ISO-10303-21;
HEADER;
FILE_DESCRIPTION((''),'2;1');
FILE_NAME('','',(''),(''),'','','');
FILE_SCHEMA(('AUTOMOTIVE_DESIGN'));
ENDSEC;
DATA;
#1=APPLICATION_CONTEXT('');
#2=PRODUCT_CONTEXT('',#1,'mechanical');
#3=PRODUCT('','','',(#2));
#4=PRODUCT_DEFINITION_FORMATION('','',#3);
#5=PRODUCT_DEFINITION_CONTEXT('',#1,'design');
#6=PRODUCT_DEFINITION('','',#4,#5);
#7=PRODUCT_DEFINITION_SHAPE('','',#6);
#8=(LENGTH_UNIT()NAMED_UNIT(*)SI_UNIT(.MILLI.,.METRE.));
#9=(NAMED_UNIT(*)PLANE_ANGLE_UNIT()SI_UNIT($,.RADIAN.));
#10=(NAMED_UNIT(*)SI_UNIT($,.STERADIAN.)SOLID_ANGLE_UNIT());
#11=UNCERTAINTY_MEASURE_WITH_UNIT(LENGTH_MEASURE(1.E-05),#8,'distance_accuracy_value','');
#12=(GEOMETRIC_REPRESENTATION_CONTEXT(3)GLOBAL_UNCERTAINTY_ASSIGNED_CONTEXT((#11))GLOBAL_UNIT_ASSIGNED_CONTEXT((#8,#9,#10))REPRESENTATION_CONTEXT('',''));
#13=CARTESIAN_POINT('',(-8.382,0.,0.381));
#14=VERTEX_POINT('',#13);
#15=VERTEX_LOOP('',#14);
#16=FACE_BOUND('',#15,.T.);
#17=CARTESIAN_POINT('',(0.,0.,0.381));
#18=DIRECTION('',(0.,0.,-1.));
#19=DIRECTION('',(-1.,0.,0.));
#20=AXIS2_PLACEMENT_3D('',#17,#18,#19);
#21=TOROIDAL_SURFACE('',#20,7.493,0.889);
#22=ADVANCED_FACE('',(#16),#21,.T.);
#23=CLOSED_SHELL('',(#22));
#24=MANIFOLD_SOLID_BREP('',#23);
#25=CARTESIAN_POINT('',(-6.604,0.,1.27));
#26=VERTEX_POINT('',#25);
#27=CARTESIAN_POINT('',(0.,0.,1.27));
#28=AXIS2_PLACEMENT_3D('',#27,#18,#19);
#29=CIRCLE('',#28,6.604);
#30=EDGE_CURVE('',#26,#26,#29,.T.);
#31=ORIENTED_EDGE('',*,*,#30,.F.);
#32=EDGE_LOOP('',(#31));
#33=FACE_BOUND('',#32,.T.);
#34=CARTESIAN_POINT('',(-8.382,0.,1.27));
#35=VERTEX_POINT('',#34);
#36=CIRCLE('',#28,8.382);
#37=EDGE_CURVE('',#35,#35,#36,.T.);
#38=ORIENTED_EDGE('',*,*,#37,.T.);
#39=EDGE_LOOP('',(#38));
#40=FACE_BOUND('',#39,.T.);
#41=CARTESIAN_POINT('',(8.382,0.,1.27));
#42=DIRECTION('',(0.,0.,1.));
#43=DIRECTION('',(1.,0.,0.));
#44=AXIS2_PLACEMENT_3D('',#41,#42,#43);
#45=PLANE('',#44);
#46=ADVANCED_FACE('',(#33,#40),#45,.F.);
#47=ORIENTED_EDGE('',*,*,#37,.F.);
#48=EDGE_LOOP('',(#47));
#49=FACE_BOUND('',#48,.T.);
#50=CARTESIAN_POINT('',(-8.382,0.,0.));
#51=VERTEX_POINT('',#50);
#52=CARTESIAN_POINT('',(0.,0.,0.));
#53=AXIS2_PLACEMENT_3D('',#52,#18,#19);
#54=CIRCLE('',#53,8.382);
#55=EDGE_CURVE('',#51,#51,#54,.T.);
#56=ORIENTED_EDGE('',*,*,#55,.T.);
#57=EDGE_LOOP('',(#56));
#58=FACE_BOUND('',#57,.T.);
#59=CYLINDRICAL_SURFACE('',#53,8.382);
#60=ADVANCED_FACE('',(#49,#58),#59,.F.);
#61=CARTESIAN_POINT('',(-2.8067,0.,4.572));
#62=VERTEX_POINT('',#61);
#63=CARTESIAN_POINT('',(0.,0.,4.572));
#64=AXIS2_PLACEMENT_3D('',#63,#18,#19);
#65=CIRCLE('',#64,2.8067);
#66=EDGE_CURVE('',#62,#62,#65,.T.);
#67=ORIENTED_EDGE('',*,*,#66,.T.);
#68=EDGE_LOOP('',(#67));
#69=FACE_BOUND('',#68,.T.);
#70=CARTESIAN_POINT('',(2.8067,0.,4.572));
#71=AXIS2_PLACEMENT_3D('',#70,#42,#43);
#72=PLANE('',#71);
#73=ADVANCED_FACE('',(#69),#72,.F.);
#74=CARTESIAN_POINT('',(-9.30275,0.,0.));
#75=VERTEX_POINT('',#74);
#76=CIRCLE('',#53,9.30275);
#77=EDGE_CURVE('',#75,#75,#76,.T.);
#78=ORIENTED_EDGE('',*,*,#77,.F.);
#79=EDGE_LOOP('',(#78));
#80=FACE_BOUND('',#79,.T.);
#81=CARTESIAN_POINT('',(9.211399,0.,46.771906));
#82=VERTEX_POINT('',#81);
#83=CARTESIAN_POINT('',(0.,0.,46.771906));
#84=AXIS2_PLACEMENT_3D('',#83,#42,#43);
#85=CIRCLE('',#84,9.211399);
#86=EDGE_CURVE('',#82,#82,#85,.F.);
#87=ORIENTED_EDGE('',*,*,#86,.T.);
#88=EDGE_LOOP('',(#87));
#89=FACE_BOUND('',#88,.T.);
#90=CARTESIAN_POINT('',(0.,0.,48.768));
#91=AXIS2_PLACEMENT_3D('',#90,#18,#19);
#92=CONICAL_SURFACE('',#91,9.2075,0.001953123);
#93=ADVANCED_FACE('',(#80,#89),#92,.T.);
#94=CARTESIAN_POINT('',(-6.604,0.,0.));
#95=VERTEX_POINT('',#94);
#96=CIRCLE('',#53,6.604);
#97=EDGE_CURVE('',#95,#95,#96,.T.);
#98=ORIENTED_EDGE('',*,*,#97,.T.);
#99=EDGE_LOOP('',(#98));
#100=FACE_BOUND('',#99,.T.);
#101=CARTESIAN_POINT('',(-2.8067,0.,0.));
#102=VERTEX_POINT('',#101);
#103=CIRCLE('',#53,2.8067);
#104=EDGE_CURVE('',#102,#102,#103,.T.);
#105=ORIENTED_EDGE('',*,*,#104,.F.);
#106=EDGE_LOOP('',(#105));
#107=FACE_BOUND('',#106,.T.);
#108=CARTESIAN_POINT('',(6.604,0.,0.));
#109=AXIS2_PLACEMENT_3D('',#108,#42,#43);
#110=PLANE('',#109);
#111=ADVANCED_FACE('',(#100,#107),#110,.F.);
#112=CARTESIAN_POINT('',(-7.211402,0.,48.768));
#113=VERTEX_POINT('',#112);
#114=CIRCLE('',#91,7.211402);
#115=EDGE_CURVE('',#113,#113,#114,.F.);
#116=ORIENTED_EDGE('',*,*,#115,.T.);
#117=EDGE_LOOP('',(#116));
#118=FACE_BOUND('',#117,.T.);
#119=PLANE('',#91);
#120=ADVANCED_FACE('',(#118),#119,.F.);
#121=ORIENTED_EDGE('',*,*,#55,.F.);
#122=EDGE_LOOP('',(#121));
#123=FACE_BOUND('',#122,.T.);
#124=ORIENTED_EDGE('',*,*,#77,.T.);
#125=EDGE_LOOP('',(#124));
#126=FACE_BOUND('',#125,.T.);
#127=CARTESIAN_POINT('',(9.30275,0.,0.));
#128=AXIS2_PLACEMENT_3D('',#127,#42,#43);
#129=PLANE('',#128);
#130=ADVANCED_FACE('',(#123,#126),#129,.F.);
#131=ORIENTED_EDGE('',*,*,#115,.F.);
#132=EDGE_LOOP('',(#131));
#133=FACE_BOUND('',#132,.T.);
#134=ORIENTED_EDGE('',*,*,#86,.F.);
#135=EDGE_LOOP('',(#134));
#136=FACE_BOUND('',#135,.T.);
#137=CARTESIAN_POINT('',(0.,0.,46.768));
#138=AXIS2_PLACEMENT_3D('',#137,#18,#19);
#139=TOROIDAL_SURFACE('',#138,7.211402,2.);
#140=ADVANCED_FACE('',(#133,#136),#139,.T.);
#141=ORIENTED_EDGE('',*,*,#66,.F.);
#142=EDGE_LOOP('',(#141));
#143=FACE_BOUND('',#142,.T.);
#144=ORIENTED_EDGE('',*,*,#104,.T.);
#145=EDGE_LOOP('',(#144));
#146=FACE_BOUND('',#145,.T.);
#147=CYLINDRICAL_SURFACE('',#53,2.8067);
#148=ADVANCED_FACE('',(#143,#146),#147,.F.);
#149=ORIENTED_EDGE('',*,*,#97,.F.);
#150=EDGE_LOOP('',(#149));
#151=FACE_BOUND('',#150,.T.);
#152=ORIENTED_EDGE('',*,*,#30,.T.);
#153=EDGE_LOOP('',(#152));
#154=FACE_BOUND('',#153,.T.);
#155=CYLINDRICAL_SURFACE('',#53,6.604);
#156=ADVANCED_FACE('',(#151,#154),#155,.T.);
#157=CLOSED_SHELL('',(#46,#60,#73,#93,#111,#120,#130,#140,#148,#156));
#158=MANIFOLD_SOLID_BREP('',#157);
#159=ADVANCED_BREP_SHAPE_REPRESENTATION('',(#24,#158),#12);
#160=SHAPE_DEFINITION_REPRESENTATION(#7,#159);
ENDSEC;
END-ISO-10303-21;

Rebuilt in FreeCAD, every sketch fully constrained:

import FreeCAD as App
import Part
import Sketcher
Q = App.Units.Quantity


def edges_at(feature, points):
    """Names of the edges that pass closest to the given points."""
    edges = feature.Shape.Edges
    near = lambda p: min(range(len(edges)), key=lambda i: edges[i].distToShape(Part.Vertex(*p))[0])
    return sorted({f"Edge{near(p) + 1}" for p in points})


def add_polygon(sketch, points):
    """Adds a closed chain of lines whose ends are joined by coincident constraints."""
    first, n = sketch.GeometryCount, len(points)
    for a, b in zip(points, points[1:] + points[:1]):
        sketch.addGeometry(Part.LineSegment(App.Vector(*a, 0), App.Vector(*b, 0)), False)
    for i in range(n):
        sketch.addConstraint(Sketcher.Constraint("Coincident", first + i, 2, first + (i + 1) % n, 1))

doc = App.newDocument("Part")
body = doc.addObject("PartDesign::Body", "Body")

# Sketch on XZ plane
sketch1 = body.newObject("Sketcher::SketchObject", "Sketch")
sketch1.AttachmentSupport = (doc.getObject("XZ_Plane"), [""])
sketch1.MapMode = "FlatFace"
add_polygon(sketch1, [(0, 48.768), (9.2075, 48.768), (9.30275, 0), (8.382, 0), (8.382, 1.27), (6.604, 1.27), (6.604, 0), (2.8067, 0), (2.8067, 4.572), (0, 4.572)])  # lines 0-9
sketch1.addConstraint([
    Sketcher.Constraint("Horizontal", 0),
    Sketcher.Constraint("Horizontal", 2),
    Sketcher.Constraint("Vertical", 3),
    Sketcher.Constraint("Horizontal", 4),
    Sketcher.Constraint("Vertical", 5),
    Sketcher.Constraint("Horizontal", 6),
    Sketcher.Constraint("Vertical", 7),
    Sketcher.Constraint("Horizontal", 8),
    Sketcher.Constraint("Vertical", 9),
    Sketcher.Constraint("PointOnObject", 1, 2, -1),
    Sketcher.Constraint("PointOnObject", 5, 2, -1),
    Sketcher.Constraint("PointOnObject", 8, 2, -2),
    Sketcher.Constraint("DistanceX", 4, 2, 4, 1, Q("0.07 in")),
    Sketcher.Constraint("DistanceY", 3, 1, 3, 2, Q("0.05 in")),
    Sketcher.Constraint("DistanceY", 7, 1, 7, 2, Q("0.18 in")),
    Sketcher.Constraint("DistanceY", 9, 1, 9, 2, Q("1.74 in")),
    Sketcher.Constraint("DistanceX", -1, 1, 2, 2, Q("0.33 in")),
    Sketcher.Constraint("DistanceX", 0, 1, 0, 2, Q("0.3625 in")),
    Sketcher.Constraint("DistanceX", 6, 2, 6, 1, Q("0.1495 in")),
    Sketcher.Constraint("DistanceX", 2, 2, 2, 1, 0.92075),
])
revolution = body.newObject("PartDesign::Revolution", "Revolution")
revolution.Profile = sketch1
revolution.ReferenceAxis = (sketch1, ["V_Axis"])
revolution.Angle = 360
doc.recompute()

fillet = body.newObject("PartDesign::Fillet", "Fillet")
fillet.Base = (revolution, edges_at(revolution, [(9.207, 0, 48.768)]))
fillet.Radius = 2
body2 = doc.addObject("PartDesign::Body", "Body001")

# Sketch on YZ plane
sketch2 = body2.newObject("Sketcher::SketchObject", "Sketch001")
sketch2.AttachmentSupport = (doc.getObject("YZ_Plane001"), [""])
sketch2.MapMode = "FlatFace"
sketch2.addGeometry(Part.Circle(App.Vector(7.493, 0.381, 0), App.Vector(0, 0, 1), 0.889), False)
sketch2.addConstraint([
    Sketcher.Constraint("Diameter", 0, Q("0.07 in")),
    Sketcher.Constraint("DistanceX", -1, 1, 0, 3, Q("0.295 in")),
    Sketcher.Constraint("DistanceY", -1, 1, 0, 3, Q("0.015 in")),
])
revolution2 = body2.newObject("PartDesign::Revolution", "Revolution001")
revolution2.Profile = sketch2
revolution2.ReferenceAxis = (sketch2, ["V_Axis"])
revolution2.Angle = 360

doc.recompute()
